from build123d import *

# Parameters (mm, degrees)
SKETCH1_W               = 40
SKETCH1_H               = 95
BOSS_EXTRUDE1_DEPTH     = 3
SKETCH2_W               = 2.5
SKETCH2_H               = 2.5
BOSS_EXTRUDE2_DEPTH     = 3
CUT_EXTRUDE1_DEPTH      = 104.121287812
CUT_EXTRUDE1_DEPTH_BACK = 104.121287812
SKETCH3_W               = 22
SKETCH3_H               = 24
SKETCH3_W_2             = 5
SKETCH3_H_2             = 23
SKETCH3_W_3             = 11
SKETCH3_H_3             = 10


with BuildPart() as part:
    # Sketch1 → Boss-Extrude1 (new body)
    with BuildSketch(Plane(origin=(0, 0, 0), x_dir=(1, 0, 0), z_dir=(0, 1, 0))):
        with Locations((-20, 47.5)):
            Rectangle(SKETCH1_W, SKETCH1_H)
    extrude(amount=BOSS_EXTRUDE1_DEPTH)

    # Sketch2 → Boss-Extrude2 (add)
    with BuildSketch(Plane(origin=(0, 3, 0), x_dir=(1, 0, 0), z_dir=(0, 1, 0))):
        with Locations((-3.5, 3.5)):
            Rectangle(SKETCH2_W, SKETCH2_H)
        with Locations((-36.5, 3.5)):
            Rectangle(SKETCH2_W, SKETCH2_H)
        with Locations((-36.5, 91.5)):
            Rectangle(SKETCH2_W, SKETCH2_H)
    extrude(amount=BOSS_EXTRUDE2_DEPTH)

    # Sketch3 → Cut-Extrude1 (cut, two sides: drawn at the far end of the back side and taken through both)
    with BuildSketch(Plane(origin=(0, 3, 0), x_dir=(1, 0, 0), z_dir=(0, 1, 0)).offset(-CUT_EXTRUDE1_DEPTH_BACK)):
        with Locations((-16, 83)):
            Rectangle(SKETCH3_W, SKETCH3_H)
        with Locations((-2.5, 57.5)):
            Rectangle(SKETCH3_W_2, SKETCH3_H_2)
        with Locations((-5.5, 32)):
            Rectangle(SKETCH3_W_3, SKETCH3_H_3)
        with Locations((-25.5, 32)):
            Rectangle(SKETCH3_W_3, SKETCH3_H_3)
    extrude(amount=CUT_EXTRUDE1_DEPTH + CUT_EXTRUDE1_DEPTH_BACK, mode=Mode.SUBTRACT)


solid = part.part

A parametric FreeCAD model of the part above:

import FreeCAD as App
import Part
import Sketcher

doc = App.newDocument("Part")
body = doc.addObject("PartDesign::Body", "Body")

sketch1 = doc.addObject("Sketcher::SketchObject", "Sketch")
body.addObject(sketch1)
sketch1.AttachmentSupport = (doc.XZ_Plane, [""])
sketch1.MapMode = "FlatFace"
sketch1.addGeometry(Part.LineSegment(App.Vector(-40, -95, 0), App.Vector(-40, 0, 0)), False)
sketch1.addGeometry(Part.LineSegment(App.Vector(-40, 0, 0), App.Vector(0, 0, 0)), False)
sketch1.addGeometry(Part.LineSegment(App.Vector(0, 0, 0), App.Vector(0, -95, 0)), False)
sketch1.addGeometry(Part.LineSegment(App.Vector(0, -95, 0), App.Vector(-40, -95, 0)), False)
sketch1.addConstraint(Sketcher.Constraint("Coincident", 0, 2, 1, 1))
sketch1.addConstraint(Sketcher.Constraint("Coincident", 1, 2, 2, 1))
sketch1.addConstraint(Sketcher.Constraint("Coincident", 2, 2, 3, 1))
sketch1.addConstraint(Sketcher.Constraint("Coincident", 3, 2, 0, 1))
sketch1.addConstraint(Sketcher.Constraint("Vertical", 0))
sketch1.addConstraint(Sketcher.Constraint("Horizontal", 1))
sketch1.addConstraint(Sketcher.Constraint("Vertical", 2))
sketch1.addConstraint(Sketcher.Constraint("Horizontal", 3))
sketch1.addConstraint(Sketcher.Constraint("Coincident", 1, 2, -1, 1))
sketch1.addConstraint(Sketcher.Constraint("DistanceX", 1, 1, 1, 2, 40.0))
sketch1.addConstraint(Sketcher.Constraint("DistanceY", 0, 1, 0, 2, 95.0))
pad1 = doc.addObject("PartDesign::Pad", "Pad")
body.addObject(pad1)
pad1.Profile = sketch1
pad1.Length = 3
pad1.Reversed = True

sketch2 = doc.addObject("Sketcher::SketchObject", "Sketch001")
body.addObject(sketch2)
sketch2.AttachmentSupport = (doc.XZ_Plane, [""])
sketch2.MapMode = "FlatFace"
sketch2.AttachmentOffset = App.Placement(App.Vector(0, 0, -3), App.Rotation())
sketch2.addGeometry(Part.LineSegment(App.Vector(-4.75, -4.75, 0), App.Vector(-4.75, -2.25, 0)), False)
sketch2.addGeometry(Part.LineSegment(App.Vector(-4.75, -2.25, 0), App.Vector(-2.25, -2.25, 0)), False)
sketch2.addGeometry(Part.LineSegment(App.Vector(-2.25, -2.25, 0), App.Vector(-2.25, -4.75, 0)), False)
sketch2.addGeometry(Part.LineSegment(App.Vector(-2.25, -4.75, 0), App.Vector(-4.75, -4.75, 0)), False)
sketch2.addGeometry(Part.LineSegment(App.Vector(-37.75, -4.75, 0), App.Vector(-37.75, -2.25, 0)), False)
sketch2.addGeometry(Part.LineSegment(App.Vector(-37.75, -2.25, 0), App.Vector(-35.25, -2.25, 0)), False)
sketch2.addGeometry(Part.LineSegment(App.Vector(-35.25, -2.25, 0), App.Vector(-35.25, -4.75, 0)), False)
sketch2.addGeometry(Part.LineSegment(App.Vector(-35.25, -4.75, 0), App.Vector(-37.75, -4.75, 0)), False)
sketch2.addGeometry(Part.LineSegment(App.Vector(-37.75, -92.75, 0), App.Vector(-37.75, -90.25, 0)), False)
sketch2.addGeometry(Part.LineSegment(App.Vector(-37.75, -90.25, 0), App.Vector(-35.25, -90.25, 0)), False)
sketch2.addGeometry(Part.LineSegment(App.Vector(-35.25, -90.25, 0), App.Vector(-35.25, -92.75, 0)), False)
sketch2.addGeometry(Part.LineSegment(App.Vector(-35.25, -92.75, 0), App.Vector(-37.75, -92.75, 0)), False)
sketch2.addConstraint(Sketcher.Constraint("Coincident", 0, 2, 1, 1))
sketch2.addConstraint(Sketcher.Constraint("Coincident", 1, 2, 2, 1))
sketch2.addConstraint(Sketcher.Constraint("Coincident", 2, 2, 3, 1))
sketch2.addConstraint(Sketcher.Constraint("Coincident", 3, 2, 0, 1))
sketch2.addConstraint(Sketcher.Constraint("Coincident", 4, 2, 5, 1))
sketch2.addConstraint(Sketcher.Constraint("Coincident", 5, 2, 6, 1))
sketch2.addConstraint(Sketcher.Constraint("Coincident", 6, 2, 7, 1))
sketch2.addConstraint(Sketcher.Constraint("Coincident", 7, 2, 4, 1))
sketch2.addConstraint(Sketcher.Constraint("Coincident", 8, 2, 9, 1))
sketch2.addConstraint(Sketcher.Constraint("Coincident", 9, 2, 10, 1))
sketch2.addConstraint(Sketcher.Constraint("Coincident", 10, 2, 11, 1))
sketch2.addConstraint(Sketcher.Constraint("Coincident", 11, 2, 8, 1))
sketch2.addConstraint(Sketcher.Constraint("Vertical", 0))
sketch2.addConstraint(Sketcher.Constraint("Horizontal", 1))
sketch2.addConstraint(Sketcher.Constraint("Vertical", 2))
sketch2.addConstraint(Sketcher.Constraint("Horizontal", 3))
sketch2.addConstraint(Sketcher.Constraint("Vertical", 4))
sketch2.addConstraint(Sketcher.Constraint("Horizontal", 5))
sketch2.addConstraint(Sketcher.Constraint("Vertical", 6))
sketch2.addConstraint(Sketcher.Constraint("Horizontal", 7))
sketch2.addConstraint(Sketcher.Constraint("Vertical", 8))
sketch2.addConstraint(Sketcher.Constraint("Horizontal", 9))
sketch2.addConstraint(Sketcher.Constraint("Vertical", 10))
sketch2.addConstraint(Sketcher.Constraint("Horizontal", 11))
sketch2.addConstraint(Sketcher.Constraint("Horizontal", 1, 2, 4, 2))
sketch2.addConstraint(Sketcher.Constraint("Horizontal", 3, 2, 6, 2))
sketch2.addConstraint(Sketcher.Constraint("Vertical", 7, 2, 8, 2))
sketch2.addConstraint(Sketcher.Constraint("Vertical", 6, 2, 9, 2))
sketch2.addConstraint(Sketcher.Constraint("Equal", 3, 5))
sketch2.addConstraint(Sketcher.Constraint("Equal", 11, 0))
sketch2.addConstraint(Sketcher.Constraint("Equal", 6, 8))
sketch2.addConstraint(Sketcher.Constraint("DistanceX", 1, 1, 1, 2, 2.5))
sketch2.addConstraint(Sketcher.Constraint("DistanceX", 4, 2, 0, 2, 33.0))
sketch2.addConstraint(Sketcher.Constraint("DistanceY", 8, 2, 4, 2, 88.0))
sketch2.addConstraint(Sketcher.Constraint("DistanceX", 0, 2, -1, 1, 4.75))
sketch2.addConstraint(Sketcher.Constraint("DistanceY", 0, 2, -1, 1, 2.25))
pad2 = doc.addObject("PartDesign::Pad", "Pad001")
body.addObject(pad2)
pad2.Profile = sketch2
pad2.Length = 3
pad2.Reversed = True

sketch3 = doc.addObject("Sketcher::SketchObject", "Sketch002")
body.addObject(sketch3)
sketch3.AttachmentSupport = (doc.XZ_Plane, [""])
sketch3.MapMode = "FlatFace"
sketch3.AttachmentOffset = App.Placement(App.Vector(0, 0, -3), App.Rotation())
sketch3.addGeometry(Part.LineSegment(App.Vector(-27, -95, 0), App.Vector(-27, -71, 0)), False)
sketch3.addGeometry(Part.LineSegment(App.Vector(-27, -71, 0), App.Vector(-5, -71, 0)), False)
sketch3.addGeometry(Part.LineSegment(App.Vector(-5, -71, 0), App.Vector(-5, -95, 0)), False)
sketch3.addGeometry(Part.LineSegment(App.Vector(-5, -95, 0), App.Vector(-27, -95, 0)), False)
sketch3.addGeometry(Part.LineSegment(App.Vector(-5, -69, 0), App.Vector(-5, -46, 0)), False)
sketch3.addGeometry(Part.LineSegment(App.Vector(-5, -46, 0), App.Vector(0, -46, 0)), False)
sketch3.addGeometry(Part.LineSegment(App.Vector(0, -46, 0), App.Vector(0, -69, 0)), False)
sketch3.addGeometry(Part.LineSegment(App.Vector(0, -69, 0), App.Vector(-5, -69, 0)), False)
sketch3.addGeometry(Part.LineSegment(App.Vector(-11, -37, 0), App.Vector(-11, -27, 0)), False)
sketch3.addGeometry(Part.LineSegment(App.Vector(-11, -27, 0), App.Vector(0, -27, 0)), False)
sketch3.addGeometry(Part.LineSegment(App.Vector(0, -27, 0), App.Vector(0, -37, 0)), False)
sketch3.addGeometry(Part.LineSegment(App.Vector(0, -37, 0), App.Vector(-11, -37, 0)), False)
sketch3.addGeometry(Part.LineSegment(App.Vector(-31, -37, 0), App.Vector(-31, -27, 0)), False)
sketch3.addGeometry(Part.LineSegment(App.Vector(-31, -27, 0), App.Vector(-20, -27, 0)), False)
sketch3.addGeometry(Part.LineSegment(App.Vector(-20, -27, 0), App.Vector(-20, -37, 0)), False)
sketch3.addGeometry(Part.LineSegment(App.Vector(-20, -37, 0), App.Vector(-31, -37, 0)), False)
sketch3.addConstraint(Sketcher.Constraint("Coincident", 0, 2, 1, 1))
sketch3.addConstraint(Sketcher.Constraint("Coincident", 1, 2, 2, 1))
sketch3.addConstraint(Sketcher.Constraint("Coincident", 2, 2, 3, 1))
sketch3.addConstraint(Sketcher.Constraint("Coincident", 3, 2, 0, 1))
sketch3.addConstraint(Sketcher.Constraint("Coincident", 4, 2, 5, 1))
sketch3.addConstraint(Sketcher.Constraint("Coincident", 5, 2, 6, 1))
sketch3.addConstraint(Sketcher.Constraint("Coincident", 6, 2, 7, 1))
sketch3.addConstraint(Sketcher.Constraint("Coincident", 7, 2, 4, 1))
sketch3.addConstraint(Sketcher.Constraint("Coincident", 8, 2, 9, 1))
sketch3.addConstraint(Sketcher.Constraint("Coincident", 9, 2, 10, 1))
sketch3.addConstraint(Sketcher.Constraint("Coincident", 10, 2, 11, 1))
sketch3.addConstraint(Sketcher.Constraint("Coincident", 11, 2, 8, 1))
sketch3.addConstraint(Sketcher.Constraint("Coincident", 12, 2, 13, 1))
sketch3.addConstraint(Sketcher.Constraint("Coincident", 13, 2, 14, 1))
sketch3.addConstraint(Sketcher.Constraint("Coincident", 14, 2, 15, 1))
sketch3.addConstraint(Sketcher.Constraint("Coincident", 15, 2, 12, 1))
sketch3.addConstraint(Sketcher.Constraint("Vertical", 0))
sketch3.addConstraint(Sketcher.Constraint("Horizontal", 1))
sketch3.addConstraint(Sketcher.Constraint("Vertical", 2))
sketch3.addConstraint(Sketcher.Constraint("Horizontal", 3))
sketch3.addConstraint(Sketcher.Constraint("Vertical", 4))
sketch3.addConstraint(Sketcher.Constraint("Horizontal", 5))
sketch3.addConstraint(Sketcher.Constraint("Vertical", 6))
sketch3.addConstraint(Sketcher.Constraint("Horizontal", 7))
sketch3.addConstraint(Sketcher.Constraint("Vertical", 8))
sketch3.addConstraint(Sketcher.Constraint("Horizontal", 9))
sketch3.addConstraint(Sketcher.Constraint("Vertical", 10))
sketch3.addConstraint(Sketcher.Constraint("Horizontal", 11))
sketch3.addConstraint(Sketcher.Constraint("Vertical", 12))
sketch3.addConstraint(Sketcher.Constraint("Horizontal", 13))
sketch3.addConstraint(Sketcher.Constraint("Vertical", 14))
sketch3.addConstraint(Sketcher.Constraint("Horizontal", 15))
sketch3.addConstraint(Sketcher.Constraint("PointOnObject", 5, 2, -2))
sketch3.addConstraint(Sketcher.Constraint("PointOnObject", 9, 2, -2))
sketch3.addConstraint(Sketcher.Constraint("Horizontal", 9, 2, 12, 2))
sketch3.addConstraint(Sketcher.Constraint("Horizontal", 11, 2, 14, 2))
sketch3.addConstraint(Sketcher.Constraint("Vertical", 2, 2, 4, 2))
sketch3.addConstraint(Sketcher.Constraint("Equal", 11, 13))
sketch3.addConstraint(Sketcher.Constraint("DistanceX", 1, 1, 1, 2, 22.0))
sketch3.addConstraint(Sketcher.Constraint("DistanceX", 5, 1, 5, 2, 5.0))
sketch3.addConstraint(Sketcher.Constraint("DistanceX", 9, 1, 9, 2, 11.0))
sketch3.addConstraint(Sketcher.Constraint("DistanceY", 0, 1, 0, 2, 24.0))
sketch3.addConstraint(Sketcher.Constraint("DistanceY", 4, 1, 4, 2, 23.0))
sketch3.addConstraint(Sketcher.Constraint("DistanceY", 8, 1, 8, 2, 10.0))
sketch3.addConstraint(Sketcher.Constraint("DistanceY", 0, 2, -1, 1, 71.0))
sketch3.addConstraint(Sketcher.Constraint("DistanceY", 4, 2, -1, 1, 46.0))
sketch3.addConstraint(Sketcher.Constraint("DistanceY", 8, 2, -1, 1, 27.0))
sketch3.addConstraint(Sketcher.Constraint("DistanceX", 12, 2, -1, 1, 31.0))
pocket1 = doc.addObject("PartDesign::Pocket", "Pocket")
body.addObject(pocket1)
pocket1.Profile = sketch3
pocket1.Type = "ThroughAll"
pocket1.Midplane = True

doc.recompute()
